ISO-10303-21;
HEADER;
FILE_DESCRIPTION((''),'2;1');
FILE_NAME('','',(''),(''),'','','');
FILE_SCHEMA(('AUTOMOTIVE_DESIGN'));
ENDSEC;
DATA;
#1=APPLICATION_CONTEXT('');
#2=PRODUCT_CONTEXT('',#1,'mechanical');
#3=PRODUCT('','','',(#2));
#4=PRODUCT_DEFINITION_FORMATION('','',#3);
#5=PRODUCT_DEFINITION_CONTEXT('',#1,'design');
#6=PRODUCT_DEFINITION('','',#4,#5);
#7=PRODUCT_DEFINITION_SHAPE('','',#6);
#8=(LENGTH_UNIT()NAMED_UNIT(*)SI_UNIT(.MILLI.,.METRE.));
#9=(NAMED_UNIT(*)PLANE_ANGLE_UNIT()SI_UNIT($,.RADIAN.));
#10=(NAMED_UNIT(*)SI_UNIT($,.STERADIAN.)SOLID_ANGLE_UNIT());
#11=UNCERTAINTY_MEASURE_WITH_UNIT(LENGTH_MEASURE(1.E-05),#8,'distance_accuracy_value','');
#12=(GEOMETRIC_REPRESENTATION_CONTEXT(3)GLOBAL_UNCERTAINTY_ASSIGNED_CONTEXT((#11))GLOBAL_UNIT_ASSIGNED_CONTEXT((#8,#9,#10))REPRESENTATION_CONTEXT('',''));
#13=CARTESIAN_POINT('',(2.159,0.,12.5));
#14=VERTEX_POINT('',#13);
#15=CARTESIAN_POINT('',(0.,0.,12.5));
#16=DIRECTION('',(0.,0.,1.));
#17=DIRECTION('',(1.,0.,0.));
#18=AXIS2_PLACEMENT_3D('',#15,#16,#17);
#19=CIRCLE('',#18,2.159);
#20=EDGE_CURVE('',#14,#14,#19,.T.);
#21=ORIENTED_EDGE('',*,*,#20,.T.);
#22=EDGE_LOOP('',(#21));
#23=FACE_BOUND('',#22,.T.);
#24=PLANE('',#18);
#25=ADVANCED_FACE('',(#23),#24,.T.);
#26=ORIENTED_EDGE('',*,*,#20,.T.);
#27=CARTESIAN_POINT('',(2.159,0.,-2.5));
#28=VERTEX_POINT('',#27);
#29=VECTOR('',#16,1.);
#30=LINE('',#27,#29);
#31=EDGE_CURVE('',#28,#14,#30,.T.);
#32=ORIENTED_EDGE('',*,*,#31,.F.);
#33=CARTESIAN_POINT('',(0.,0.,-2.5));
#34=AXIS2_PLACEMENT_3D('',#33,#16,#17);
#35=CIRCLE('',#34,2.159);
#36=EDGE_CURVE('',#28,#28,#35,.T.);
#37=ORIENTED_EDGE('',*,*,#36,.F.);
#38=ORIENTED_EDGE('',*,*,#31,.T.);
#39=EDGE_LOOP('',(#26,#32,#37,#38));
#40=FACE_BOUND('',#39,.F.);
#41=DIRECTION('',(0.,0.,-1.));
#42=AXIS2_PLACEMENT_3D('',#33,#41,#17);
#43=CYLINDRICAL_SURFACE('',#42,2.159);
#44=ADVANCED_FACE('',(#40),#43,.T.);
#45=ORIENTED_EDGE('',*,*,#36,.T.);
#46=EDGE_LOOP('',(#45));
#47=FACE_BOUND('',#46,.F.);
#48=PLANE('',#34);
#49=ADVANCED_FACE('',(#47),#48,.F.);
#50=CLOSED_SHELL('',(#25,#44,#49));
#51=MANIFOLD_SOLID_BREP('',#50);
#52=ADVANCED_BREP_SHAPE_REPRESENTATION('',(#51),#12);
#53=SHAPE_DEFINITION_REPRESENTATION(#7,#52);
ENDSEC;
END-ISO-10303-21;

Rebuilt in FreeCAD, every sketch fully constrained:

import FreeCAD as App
import Part
import Sketcher
Q = App.Units.Quantity

doc = App.newDocument("Part")
body = doc.addObject("PartDesign::Body", "Body")

# Sketch on XY plane
sketch1 = body.newObject("Sketcher::SketchObject", "Sketch")
sketch1.AttachmentSupport = (doc.getObject("XY_Plane"), [""])
sketch1.MapMode = "FlatFace"
sketch1.AttachmentOffset = App.Placement(App.Vector(0, 0, -2.5), App.Rotation())
sketch1.addGeometry(Part.Circle(App.Vector(0, 0, 0), App.Vector(0, 0, 1), 2.2), False)
sketch1.addConstraint(Sketcher.Constraint("Coincident", 0, 3, -1, 1))
sketch1.addConstraint(Sketcher.Constraint("Diameter", 0, Q("4.318 mm")))
pad1 = body.newObject("PartDesign::Pad", "Pad")
pad1.Profile = sketch1
pad1.Length = 15

doc.recompute()
